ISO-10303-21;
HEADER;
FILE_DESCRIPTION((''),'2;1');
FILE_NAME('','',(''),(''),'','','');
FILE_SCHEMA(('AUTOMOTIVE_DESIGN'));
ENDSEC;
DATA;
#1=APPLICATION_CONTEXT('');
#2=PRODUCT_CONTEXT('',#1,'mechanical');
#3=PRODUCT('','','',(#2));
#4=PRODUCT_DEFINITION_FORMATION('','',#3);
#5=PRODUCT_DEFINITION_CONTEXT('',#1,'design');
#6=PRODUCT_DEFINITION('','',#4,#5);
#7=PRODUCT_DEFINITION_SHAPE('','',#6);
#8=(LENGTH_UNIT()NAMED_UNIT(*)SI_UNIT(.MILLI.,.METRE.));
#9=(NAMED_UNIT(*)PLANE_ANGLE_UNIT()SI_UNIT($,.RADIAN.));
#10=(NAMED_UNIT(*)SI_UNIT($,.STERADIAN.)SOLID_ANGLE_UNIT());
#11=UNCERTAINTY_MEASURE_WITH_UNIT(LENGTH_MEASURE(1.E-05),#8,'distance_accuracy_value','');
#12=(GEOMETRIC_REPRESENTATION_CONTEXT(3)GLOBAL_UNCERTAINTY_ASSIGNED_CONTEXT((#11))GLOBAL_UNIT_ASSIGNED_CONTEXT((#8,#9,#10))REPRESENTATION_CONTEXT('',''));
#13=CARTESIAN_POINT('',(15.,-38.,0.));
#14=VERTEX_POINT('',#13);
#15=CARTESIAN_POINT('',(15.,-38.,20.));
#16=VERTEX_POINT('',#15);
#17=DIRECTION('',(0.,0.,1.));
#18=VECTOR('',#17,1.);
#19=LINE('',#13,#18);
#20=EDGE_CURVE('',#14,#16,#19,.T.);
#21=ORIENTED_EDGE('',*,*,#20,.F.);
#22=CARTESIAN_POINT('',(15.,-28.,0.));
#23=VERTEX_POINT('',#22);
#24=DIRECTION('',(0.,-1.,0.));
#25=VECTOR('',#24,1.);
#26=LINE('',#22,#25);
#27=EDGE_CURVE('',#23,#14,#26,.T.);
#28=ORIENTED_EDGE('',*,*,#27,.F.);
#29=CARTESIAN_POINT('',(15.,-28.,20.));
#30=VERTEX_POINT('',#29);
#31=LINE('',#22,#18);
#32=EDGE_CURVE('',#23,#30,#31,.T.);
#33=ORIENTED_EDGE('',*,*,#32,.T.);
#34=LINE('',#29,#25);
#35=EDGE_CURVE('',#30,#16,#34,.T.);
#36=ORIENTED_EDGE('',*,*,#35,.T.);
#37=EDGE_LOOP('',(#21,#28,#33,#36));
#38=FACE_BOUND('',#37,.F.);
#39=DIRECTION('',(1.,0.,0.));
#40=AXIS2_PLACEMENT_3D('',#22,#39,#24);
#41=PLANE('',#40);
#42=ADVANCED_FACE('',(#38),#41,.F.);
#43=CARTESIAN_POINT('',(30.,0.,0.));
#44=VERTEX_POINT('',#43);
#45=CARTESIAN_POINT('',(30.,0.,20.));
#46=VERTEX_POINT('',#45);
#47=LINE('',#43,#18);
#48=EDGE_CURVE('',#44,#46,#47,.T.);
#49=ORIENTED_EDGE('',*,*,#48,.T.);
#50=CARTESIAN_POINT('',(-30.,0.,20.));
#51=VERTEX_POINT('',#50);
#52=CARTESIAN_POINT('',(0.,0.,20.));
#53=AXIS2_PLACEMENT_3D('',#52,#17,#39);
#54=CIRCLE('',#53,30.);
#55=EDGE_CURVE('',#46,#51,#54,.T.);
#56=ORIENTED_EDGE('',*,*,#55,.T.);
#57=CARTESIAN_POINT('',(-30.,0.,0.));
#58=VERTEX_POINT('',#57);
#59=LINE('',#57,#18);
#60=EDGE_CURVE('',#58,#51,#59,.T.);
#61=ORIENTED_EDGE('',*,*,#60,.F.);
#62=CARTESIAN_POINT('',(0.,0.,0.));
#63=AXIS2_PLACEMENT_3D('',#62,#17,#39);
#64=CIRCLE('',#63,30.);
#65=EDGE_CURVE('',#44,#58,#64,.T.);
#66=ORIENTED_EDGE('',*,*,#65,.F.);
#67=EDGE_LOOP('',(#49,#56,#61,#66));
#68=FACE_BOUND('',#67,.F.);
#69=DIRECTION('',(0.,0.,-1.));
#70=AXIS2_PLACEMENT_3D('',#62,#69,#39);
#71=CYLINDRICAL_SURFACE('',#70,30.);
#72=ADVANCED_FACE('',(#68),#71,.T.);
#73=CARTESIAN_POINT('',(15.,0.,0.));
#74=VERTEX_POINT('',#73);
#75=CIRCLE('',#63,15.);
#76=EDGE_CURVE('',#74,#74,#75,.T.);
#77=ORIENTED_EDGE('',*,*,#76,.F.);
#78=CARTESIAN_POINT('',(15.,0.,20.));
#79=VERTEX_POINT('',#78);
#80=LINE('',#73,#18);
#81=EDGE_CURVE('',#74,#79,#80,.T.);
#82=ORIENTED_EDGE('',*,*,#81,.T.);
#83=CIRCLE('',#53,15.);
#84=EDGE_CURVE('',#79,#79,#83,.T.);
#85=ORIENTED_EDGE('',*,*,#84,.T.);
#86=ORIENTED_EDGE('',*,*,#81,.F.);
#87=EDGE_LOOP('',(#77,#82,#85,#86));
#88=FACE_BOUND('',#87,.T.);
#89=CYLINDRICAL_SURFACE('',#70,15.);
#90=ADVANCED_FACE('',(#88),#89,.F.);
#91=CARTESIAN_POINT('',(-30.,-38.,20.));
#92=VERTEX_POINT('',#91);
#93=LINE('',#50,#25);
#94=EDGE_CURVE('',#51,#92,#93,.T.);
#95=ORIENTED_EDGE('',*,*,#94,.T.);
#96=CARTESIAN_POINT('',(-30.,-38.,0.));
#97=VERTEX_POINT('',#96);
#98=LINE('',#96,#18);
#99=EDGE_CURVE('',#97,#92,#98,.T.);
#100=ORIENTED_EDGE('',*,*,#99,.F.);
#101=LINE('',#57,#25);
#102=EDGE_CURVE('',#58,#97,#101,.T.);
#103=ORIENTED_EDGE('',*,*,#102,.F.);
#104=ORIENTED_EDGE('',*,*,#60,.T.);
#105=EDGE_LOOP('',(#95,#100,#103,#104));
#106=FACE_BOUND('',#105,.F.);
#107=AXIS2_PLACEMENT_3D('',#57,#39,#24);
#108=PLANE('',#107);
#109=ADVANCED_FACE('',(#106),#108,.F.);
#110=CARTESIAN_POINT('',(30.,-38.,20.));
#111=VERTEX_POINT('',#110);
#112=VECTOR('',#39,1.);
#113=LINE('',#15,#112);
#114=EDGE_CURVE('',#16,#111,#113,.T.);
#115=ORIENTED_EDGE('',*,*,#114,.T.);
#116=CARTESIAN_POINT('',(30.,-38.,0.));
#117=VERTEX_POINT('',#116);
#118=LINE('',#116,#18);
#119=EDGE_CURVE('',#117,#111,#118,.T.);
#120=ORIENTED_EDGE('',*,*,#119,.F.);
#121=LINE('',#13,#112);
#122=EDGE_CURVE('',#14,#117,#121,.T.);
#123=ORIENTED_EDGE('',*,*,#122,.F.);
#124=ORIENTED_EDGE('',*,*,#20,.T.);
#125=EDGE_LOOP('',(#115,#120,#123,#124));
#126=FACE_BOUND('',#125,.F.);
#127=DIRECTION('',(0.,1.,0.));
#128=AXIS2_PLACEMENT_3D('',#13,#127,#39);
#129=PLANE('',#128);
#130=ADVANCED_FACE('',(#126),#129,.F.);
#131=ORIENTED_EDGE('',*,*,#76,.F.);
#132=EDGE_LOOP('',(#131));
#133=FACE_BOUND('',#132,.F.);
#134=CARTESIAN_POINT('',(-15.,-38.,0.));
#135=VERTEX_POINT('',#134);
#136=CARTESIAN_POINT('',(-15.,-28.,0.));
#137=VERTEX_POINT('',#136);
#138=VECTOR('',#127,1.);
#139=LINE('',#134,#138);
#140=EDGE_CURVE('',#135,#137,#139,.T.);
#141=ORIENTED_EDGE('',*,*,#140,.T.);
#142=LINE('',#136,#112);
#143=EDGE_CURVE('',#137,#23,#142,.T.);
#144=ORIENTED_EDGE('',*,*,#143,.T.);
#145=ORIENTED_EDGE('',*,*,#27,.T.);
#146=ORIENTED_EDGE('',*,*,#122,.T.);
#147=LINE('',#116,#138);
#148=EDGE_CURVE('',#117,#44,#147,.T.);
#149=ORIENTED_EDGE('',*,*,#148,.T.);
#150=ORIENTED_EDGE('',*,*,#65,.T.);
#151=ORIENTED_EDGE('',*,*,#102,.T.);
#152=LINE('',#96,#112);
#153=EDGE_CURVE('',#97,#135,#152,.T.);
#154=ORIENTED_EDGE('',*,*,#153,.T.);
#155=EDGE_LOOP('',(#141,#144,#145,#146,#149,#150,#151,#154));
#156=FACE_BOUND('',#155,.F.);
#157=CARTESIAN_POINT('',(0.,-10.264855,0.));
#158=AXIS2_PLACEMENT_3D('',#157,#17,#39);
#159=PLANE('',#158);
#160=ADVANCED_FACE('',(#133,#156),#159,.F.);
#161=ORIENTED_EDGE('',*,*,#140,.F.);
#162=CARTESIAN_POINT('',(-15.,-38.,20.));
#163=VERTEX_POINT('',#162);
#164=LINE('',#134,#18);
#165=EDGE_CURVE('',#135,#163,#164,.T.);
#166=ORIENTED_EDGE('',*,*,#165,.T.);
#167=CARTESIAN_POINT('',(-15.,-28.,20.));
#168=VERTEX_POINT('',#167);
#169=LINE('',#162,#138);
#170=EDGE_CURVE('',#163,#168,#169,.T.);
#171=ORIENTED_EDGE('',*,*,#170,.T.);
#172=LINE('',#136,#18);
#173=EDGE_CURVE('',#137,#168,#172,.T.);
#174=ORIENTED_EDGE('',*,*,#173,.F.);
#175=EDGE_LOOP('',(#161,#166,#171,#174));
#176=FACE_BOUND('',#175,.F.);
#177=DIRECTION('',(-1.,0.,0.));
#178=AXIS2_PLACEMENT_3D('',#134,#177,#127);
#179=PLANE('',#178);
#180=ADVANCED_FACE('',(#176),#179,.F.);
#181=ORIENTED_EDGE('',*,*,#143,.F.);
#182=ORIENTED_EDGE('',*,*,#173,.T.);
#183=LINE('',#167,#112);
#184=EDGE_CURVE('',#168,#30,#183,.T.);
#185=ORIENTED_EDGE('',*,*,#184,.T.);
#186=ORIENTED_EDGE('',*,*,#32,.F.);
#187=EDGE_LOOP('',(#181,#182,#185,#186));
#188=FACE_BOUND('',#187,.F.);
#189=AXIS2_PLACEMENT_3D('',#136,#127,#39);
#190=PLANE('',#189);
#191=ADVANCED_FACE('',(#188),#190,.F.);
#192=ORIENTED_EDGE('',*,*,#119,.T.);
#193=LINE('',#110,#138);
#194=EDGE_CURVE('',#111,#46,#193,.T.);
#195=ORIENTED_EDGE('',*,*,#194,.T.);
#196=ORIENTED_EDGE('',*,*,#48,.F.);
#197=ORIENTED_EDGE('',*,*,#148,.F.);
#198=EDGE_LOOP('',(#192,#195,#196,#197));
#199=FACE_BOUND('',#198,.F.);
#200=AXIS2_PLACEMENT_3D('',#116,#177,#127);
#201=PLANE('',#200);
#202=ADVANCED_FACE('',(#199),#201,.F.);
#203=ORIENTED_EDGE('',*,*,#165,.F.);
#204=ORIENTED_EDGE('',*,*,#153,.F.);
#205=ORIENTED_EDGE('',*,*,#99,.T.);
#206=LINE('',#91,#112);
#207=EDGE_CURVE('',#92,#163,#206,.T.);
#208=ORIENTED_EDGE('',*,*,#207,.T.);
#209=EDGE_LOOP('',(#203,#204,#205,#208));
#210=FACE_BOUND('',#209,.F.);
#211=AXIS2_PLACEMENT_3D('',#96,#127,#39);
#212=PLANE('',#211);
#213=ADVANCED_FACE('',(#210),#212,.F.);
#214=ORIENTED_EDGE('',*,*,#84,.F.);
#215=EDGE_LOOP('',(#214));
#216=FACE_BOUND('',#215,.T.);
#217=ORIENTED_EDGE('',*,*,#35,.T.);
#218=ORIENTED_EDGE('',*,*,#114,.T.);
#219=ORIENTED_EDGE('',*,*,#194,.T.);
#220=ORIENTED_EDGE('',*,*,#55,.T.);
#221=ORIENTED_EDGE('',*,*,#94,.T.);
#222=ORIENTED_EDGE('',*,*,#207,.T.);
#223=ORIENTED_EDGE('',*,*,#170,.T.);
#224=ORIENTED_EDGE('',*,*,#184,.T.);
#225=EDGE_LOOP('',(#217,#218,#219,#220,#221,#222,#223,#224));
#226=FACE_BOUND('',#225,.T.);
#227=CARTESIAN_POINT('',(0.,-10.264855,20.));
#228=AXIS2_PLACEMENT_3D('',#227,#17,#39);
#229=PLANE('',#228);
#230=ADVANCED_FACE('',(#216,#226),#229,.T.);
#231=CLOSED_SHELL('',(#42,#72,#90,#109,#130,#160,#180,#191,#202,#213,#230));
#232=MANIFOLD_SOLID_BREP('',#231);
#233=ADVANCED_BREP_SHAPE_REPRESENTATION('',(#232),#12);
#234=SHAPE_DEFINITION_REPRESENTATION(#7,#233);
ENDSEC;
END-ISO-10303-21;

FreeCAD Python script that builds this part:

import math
import FreeCAD as App
import Part
import Sketcher
from FreeCAD import Vector

doc = App.newDocument("Part")
body = doc.addObject("PartDesign::Body", "Body")

# Sketch on XY plane
sketch1 = body.newObject("Sketcher::SketchObject", "Sketch")
sketch1.AttachmentSupport = (doc.getObject("XY_Plane"), [""])
sketch1.MapMode = "FlatFace"
sketch1.addGeometry([
    Part.ArcOfCircle(Part.Circle(Vector(0, 0, 0), Vector(0, 0, 1), 30), math.radians(0), math.radians(180)),  # 0
    Part.LineSegment(Vector(-30, 0, 0), Vector(-30, -38, 0)),  # 1
    Part.LineSegment(Vector(-30, -38, 0), Vector(-15, -38, 0)),  # 2
    Part.LineSegment(Vector(-15, -38, 0), Vector(-15, -28, 0)),  # 3
    Part.LineSegment(Vector(-15, -28, 0), Vector(15, -28, 0)),  # 4
    Part.LineSegment(Vector(15, -28, 0), Vector(15, -38, 0)),  # 5
    Part.LineSegment(Vector(15, -38, 0), Vector(30, -38, 0)),  # 6
    Part.LineSegment(Vector(30, -38, 0), Vector(30, 0, 0)),  # 7
    Part.Circle(Vector(0, 0, 0), Vector(0, 0, 1), 15),  # 8
], False)
sketch1.addConstraint([
    Sketcher.Constraint("Tangent", 0, 2, 1, 1),
    Sketcher.Constraint("Coincident", 1, 2, 2, 1),
    Sketcher.Constraint("Coincident", 2, 2, 3, 1),
    Sketcher.Constraint("Coincident", 3, 2, 4, 1),
    Sketcher.Constraint("Coincident", 4, 2, 5, 1),
    Sketcher.Constraint("Coincident", 5, 2, 6, 1),
    Sketcher.Constraint("Coincident", 6, 2, 7, 1),
    Sketcher.Constraint("Tangent", 7, 2, 0, 1),
    Sketcher.Constraint("Vertical", 1),
    Sketcher.Constraint("Horizontal", 2),
    Sketcher.Constraint("Vertical", 3),
    Sketcher.Constraint("Horizontal", 4),
    Sketcher.Constraint("Vertical", 5),
    Sketcher.Constraint("Horizontal", 6),
    Sketcher.Constraint("Vertical", 7),
    Sketcher.Constraint("Coincident", 0, 3, -1, 1),
    Sketcher.Constraint("Coincident", 8, 3, -1, 1),
    Sketcher.Constraint("Symmetric", 2, 2, 5, 2, -2),
    Sketcher.Constraint("Diameter", 8, 30.0),
    Sketcher.Constraint("Radius", 0, 30.0),
    Sketcher.Constraint("DistanceX", 2, 1, 2, 2, 15.0),
    Sketcher.Constraint("DistanceY", 1, 2, 1, 1, 38.0),
    Sketcher.Constraint("DistanceY", 3, 1, 3, 2, 10.0),
])
pad1 = body.newObject("PartDesign::Pad", "Pad")
pad1.Profile = sketch1
pad1.Length = 20

doc.recompute()
